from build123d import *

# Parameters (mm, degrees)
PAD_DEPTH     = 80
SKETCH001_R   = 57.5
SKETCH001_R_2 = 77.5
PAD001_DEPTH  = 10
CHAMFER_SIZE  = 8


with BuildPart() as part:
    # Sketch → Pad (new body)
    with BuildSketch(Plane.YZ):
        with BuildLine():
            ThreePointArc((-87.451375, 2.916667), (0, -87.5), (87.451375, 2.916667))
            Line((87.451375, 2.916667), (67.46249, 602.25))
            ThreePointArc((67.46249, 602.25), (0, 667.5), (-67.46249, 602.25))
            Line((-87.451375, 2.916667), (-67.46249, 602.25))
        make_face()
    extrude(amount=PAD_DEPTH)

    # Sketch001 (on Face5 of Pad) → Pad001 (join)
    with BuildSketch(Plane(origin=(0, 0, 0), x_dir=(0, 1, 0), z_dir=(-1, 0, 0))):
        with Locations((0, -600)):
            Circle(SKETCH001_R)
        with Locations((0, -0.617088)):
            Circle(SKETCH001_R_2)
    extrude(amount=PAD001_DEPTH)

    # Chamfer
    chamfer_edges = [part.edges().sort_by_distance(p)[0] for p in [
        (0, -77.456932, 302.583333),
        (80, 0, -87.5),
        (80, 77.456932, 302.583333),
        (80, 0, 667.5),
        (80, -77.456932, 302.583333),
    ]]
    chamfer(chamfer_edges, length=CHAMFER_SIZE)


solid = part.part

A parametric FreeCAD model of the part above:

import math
import FreeCAD as App
import Part
import Sketcher
Q = App.Units.Quantity


def edges_at(feature, points):
    """Names of the edges that pass closest to the given points."""
    edges = feature.Shape.Edges
    near = lambda p: min(range(len(edges)), key=lambda i: edges[i].distToShape(Part.Vertex(*p))[0])
    return sorted({f"Edge{near(p) + 1}" for p in points})

doc = App.newDocument("Part")
params = doc.addObject("Spreadsheet::Sheet", "Params")
for row, (alias, value) in enumerate([
    ("sketch1_radius", "87.5 mm"),
    ("sketch1_radius2", "67.5 mm"),
    ("pad1_length", "80 mm"),
    ("sketch2_diameter", "115 mm"),
    ("sketch2_diameter2", "155 mm"),
    ("pad2_length", "10 mm"),
    ("chamfer_size", "8 mm"),
], start=1):
    params.set(f"A{row}", alias)
    params.set(f"B{row}", "=" + value)
    params.setAlias(f"B{row}", alias)

body = doc.addObject("PartDesign::Body", "Body")

sketch1 = body.newObject("Sketcher::SketchObject", "Sketch")
sketch1.AttachmentSupport = (doc.getObject("YZ_Plane"), [""])
sketch1.MapMode = "FlatFace"
sketch1.addGeometry(Part.ArcOfCircle(Part.Circle(App.Vector(0, 0, 0), App.Vector(0, 0, 1), 87), math.radians(178), math.radians(362)), False)
sketch1.addGeometry(Part.LineSegment(App.Vector(87, 3, 0), App.Vector(67, 602, 0)), False)
sketch1.addGeometry(Part.ArcOfCircle(Part.Circle(App.Vector(0, 600, 0), App.Vector(0, 0, 1), 68), math.radians(2), math.radians(178)), False)
sketch1.addGeometry(Part.LineSegment(App.Vector(-67, 602, 0), App.Vector(-87, 3, 0)), False)
sketch1.addConstraint(Sketcher.Constraint("Tangent", 0, 2, 1, 1))
sketch1.addConstraint(Sketcher.Constraint("Tangent", 1, 2, 2, 1))
sketch1.addConstraint(Sketcher.Constraint("Tangent", 2, 2, 3, 1))
sketch1.addConstraint(Sketcher.Constraint("Tangent", 3, 2, 0, 1))
sketch1.addConstraint(Sketcher.Constraint("Coincident", 0, 3, -1, 1))
sketch1.addConstraint(Sketcher.Constraint("PointOnObject", 2, 3, -2))
sketch1.addConstraint(Sketcher.Constraint("Radius", 0, Q("87.5 mm")))
sketch1.addConstraint(Sketcher.Constraint("Radius", 2, Q("67.5 mm")))
sketch1.addConstraint(Sketcher.Constraint("DistanceY", -1, 1, 2, 3, Q("600 mm")))
sketch1.setExpression("Constraints[6]", "Params.sketch1_radius")
sketch1.setExpression("Constraints[7]", "Params.sketch1_radius2")
pad1 = body.newObject("PartDesign::Pad", "Pad")
pad1.Profile = sketch1
pad1.setExpression("Length", "Params.pad1_length")

sketch2 = body.newObject("Sketcher::SketchObject", "Sketch001")
sketch2.AttachmentSupport = (doc.getObject("YZ_Plane"), [""])
sketch2.MapMode = "FlatFace"
sketch2.addGeometry(Part.Circle(App.Vector(0, 600, 0), App.Vector(0, 0, 1), 58), False)
sketch2.addGeometry(Part.Circle(App.Vector(0, 1, 0), App.Vector(0, 0, 1), 78), False)
sketch2.addConstraint(Sketcher.Constraint("PointOnObject", 0, 3, -2))
sketch2.addConstraint(Sketcher.Constraint("PointOnObject", 1, 3, -2))
sketch2.addConstraint(Sketcher.Constraint("Diameter", 0, Q("115 mm")))
sketch2.addConstraint(Sketcher.Constraint("Diameter", 1, Q("155 mm")))
sketch2.addConstraint(Sketcher.Constraint("DistanceY", -1, 1, 0, 3, Q("600 mm")))
sketch2.addConstraint(Sketcher.Constraint("DistanceY", 1, 3, 0, 3, Q("599.382912 mm")))
sketch2.setExpression("Constraints[2]", "Params.sketch2_diameter")
sketch2.setExpression("Constraints[3]", "Params.sketch2_diameter2")
pad2 = body.newObject("PartDesign::Pad", "Pad001")
pad2.Profile = sketch2
pad2.setExpression("Length", "Params.pad2_length")
pad2.Reversed = True
doc.recompute()

chamfer = body.newObject("PartDesign::Chamfer", "Chamfer")
chamfer.Base = (pad2, edges_at(pad2, [
    (0, -77.457, 302.583),
    (80, 0, -87.5),
    (80, 77.457, 302.583),
    (80, 0, 667.5),
    (80, -77.457, 302.583),
]))
chamfer.setExpression("Size", "Params.chamfer_size")

doc.recompute()
